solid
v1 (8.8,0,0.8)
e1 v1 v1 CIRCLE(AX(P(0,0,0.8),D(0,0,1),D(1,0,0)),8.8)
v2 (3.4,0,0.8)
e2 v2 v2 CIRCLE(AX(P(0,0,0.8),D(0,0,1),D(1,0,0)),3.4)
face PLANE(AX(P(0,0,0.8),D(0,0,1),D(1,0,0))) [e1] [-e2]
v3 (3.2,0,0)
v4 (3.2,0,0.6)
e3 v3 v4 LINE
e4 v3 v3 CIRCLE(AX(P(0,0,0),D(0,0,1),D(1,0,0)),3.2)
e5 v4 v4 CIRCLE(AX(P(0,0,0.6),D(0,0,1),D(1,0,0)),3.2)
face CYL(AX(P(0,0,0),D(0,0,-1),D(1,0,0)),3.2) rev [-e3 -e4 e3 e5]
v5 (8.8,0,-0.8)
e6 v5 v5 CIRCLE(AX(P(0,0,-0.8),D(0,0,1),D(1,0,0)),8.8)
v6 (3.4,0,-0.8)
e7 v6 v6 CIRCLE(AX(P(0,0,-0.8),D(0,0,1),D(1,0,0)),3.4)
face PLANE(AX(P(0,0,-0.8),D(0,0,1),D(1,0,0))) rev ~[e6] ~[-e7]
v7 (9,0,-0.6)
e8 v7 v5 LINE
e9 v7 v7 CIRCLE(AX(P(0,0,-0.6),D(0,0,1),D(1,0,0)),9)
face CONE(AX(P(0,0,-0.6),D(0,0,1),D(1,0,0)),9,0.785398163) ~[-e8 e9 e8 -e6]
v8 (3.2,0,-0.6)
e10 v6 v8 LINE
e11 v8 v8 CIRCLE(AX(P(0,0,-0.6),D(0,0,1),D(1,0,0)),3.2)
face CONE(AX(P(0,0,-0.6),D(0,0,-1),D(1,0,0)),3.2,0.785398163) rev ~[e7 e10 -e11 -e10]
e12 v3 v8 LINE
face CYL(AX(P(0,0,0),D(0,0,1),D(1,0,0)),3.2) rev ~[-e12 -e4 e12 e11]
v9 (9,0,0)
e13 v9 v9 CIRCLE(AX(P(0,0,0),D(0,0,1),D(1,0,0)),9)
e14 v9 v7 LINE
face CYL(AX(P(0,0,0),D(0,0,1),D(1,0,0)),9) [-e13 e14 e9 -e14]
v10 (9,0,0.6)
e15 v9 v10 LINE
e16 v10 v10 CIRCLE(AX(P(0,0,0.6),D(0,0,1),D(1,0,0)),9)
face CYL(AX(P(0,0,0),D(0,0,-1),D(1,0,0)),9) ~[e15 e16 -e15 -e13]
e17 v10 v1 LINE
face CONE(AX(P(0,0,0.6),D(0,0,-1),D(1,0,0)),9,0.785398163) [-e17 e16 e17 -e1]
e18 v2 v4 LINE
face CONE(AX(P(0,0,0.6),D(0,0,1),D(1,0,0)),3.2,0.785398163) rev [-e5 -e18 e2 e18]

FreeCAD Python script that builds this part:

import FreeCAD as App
import Part
import Sketcher
from FreeCAD import Vector
Q = App.Units.Quantity


def edges_at(feature, points):
    """Names of the edges that pass closest to the given points."""
    edges = feature.Shape.Edges
    near = lambda p: min(range(len(edges)), key=lambda i: edges[i].distToShape(Part.Vertex(*p))[0])
    return sorted({f"Edge{near(p) + 1}" for p in points})

doc = App.newDocument("Part")
body = doc.addObject("PartDesign::Body", "Body")

# Sketch on XY plane
sketch1 = body.newObject("Sketcher::SketchObject", "Sketch")
sketch1.AttachmentSupport = (doc.getObject("XY_Plane"), [""])
sketch1.MapMode = "FlatFace"
sketch1.addGeometry(Part.Circle(Vector(0, 0, 0), Vector(0, 0, 1), 9), False)
sketch1.addGeometry(Part.Circle(Vector(0, 0, 0), Vector(0, 0, 1), 3.2), False)
sketch1.addConstraint(Sketcher.Constraint("Coincident", 0, 3, -1, 1))
sketch1.addConstraint(Sketcher.Constraint("Coincident", 1, 3, -1, 1))
sketch1.addConstraint(Sketcher.Constraint("Diameter", 0, Q("18 mm")))
sketch1.addConstraint(Sketcher.Constraint("Diameter", 1, Q("6.4 mm")))
pad1 = body.newObject("PartDesign::Pad", "Pad")
pad1.Profile = sketch1
pad1.Length = 1.6
pad1.Midplane = True
doc.recompute()

chamfer = body.newObject("PartDesign::Chamfer", "Chamfer")
chamfer.Base = (pad1, edges_at(pad1, [
    (-9, 0, 0.8),
    (-9, 0, -0.8),
    (-3.2, 0, 0.8),
    (-3.2, 0, -0.8),
]))
chamfer.Size = 0.2

doc.recompute()
